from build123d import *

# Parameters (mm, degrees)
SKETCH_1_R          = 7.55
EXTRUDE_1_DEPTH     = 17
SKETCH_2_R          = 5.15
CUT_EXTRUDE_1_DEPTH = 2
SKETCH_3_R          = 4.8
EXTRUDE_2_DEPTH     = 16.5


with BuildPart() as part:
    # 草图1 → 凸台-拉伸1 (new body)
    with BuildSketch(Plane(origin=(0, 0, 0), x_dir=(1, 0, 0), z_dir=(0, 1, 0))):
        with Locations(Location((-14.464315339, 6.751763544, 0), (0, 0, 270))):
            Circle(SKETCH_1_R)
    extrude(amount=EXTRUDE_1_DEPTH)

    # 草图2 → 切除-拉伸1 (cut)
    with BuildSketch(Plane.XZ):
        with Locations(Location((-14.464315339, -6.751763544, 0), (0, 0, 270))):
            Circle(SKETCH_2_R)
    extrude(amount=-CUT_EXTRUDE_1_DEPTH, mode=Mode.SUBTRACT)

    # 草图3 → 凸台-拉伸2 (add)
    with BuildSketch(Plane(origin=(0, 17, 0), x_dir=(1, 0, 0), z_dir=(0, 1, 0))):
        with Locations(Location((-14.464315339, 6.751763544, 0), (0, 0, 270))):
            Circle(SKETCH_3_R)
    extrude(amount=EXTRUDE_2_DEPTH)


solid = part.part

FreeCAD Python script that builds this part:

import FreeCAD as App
import Part
import Sketcher
Q = App.Units.Quantity

doc = App.newDocument("Part")
body = doc.addObject("PartDesign::Body", "Body")

sketch1 = body.newObject("Sketcher::SketchObject", "Sketch")
sketch1.AttachmentSupport = (doc.getObject("XZ_Plane"), [""])
sketch1.MapMode = "FlatFace"
sketch1.addGeometry(Part.Circle(App.Vector(-14.464315, -6.751764, 0), App.Vector(0, 0, 1), 7.55), False)
sketch1.addConstraint([
    Sketcher.Constraint("Diameter", 0, Q("15.1 mm")),
    Sketcher.Constraint("DistanceX", 0, 3, -1, 1, Q("14.464315 mm")),
    Sketcher.Constraint("DistanceY", 0, 3, -1, 1, Q("6.751764 mm")),
])
pad1 = body.newObject("PartDesign::Pad", "Pad")
pad1.Profile = sketch1
pad1.Length = 17
pad1.Reversed = True

sketch2 = body.newObject("Sketcher::SketchObject", "Sketch001")
sketch2.AttachmentSupport = (doc.getObject("XZ_Plane"), [""])
sketch2.MapMode = "FlatFace"
sketch2.addGeometry(Part.Circle(App.Vector(-14.464315, -6.751764, 0), App.Vector(0, 0, 1), 5.15), False)
sketch2.addConstraint([
    Sketcher.Constraint("Diameter", 0, Q("10.3 mm")),
    Sketcher.Constraint("DistanceX", 0, 3, -1, 1, Q("14.464315 mm")),
    Sketcher.Constraint("DistanceY", 0, 3, -1, 1, Q("6.751764 mm")),
])
pocket1 = body.newObject("PartDesign::Pocket", "Pocket")
pocket1.Profile = sketch2
pocket1.Length = 2

sketch3 = body.newObject("Sketcher::SketchObject", "Sketch002")
sketch3.AttachmentSupport = (doc.getObject("XZ_Plane"), [""])
sketch3.MapMode = "FlatFace"
sketch3.AttachmentOffset = App.Placement(App.Vector(0, 0, -17), App.Rotation())
sketch3.addGeometry(Part.Circle(App.Vector(-14.464315, -6.751764, 0), App.Vector(0, 0, 1), 4.8), False)
sketch3.addConstraint([
    Sketcher.Constraint("Diameter", 0, Q("9.6 mm")),
    Sketcher.Constraint("DistanceX", 0, 3, -1, 1, Q("14.464315 mm")),
    Sketcher.Constraint("DistanceY", 0, 3, -1, 1, Q("6.751764 mm")),
])
pad2 = body.newObject("PartDesign::Pad", "Pad001")
pad2.Profile = sketch3
pad2.Length = 16.5
pad2.Reversed = True

doc.recompute()
